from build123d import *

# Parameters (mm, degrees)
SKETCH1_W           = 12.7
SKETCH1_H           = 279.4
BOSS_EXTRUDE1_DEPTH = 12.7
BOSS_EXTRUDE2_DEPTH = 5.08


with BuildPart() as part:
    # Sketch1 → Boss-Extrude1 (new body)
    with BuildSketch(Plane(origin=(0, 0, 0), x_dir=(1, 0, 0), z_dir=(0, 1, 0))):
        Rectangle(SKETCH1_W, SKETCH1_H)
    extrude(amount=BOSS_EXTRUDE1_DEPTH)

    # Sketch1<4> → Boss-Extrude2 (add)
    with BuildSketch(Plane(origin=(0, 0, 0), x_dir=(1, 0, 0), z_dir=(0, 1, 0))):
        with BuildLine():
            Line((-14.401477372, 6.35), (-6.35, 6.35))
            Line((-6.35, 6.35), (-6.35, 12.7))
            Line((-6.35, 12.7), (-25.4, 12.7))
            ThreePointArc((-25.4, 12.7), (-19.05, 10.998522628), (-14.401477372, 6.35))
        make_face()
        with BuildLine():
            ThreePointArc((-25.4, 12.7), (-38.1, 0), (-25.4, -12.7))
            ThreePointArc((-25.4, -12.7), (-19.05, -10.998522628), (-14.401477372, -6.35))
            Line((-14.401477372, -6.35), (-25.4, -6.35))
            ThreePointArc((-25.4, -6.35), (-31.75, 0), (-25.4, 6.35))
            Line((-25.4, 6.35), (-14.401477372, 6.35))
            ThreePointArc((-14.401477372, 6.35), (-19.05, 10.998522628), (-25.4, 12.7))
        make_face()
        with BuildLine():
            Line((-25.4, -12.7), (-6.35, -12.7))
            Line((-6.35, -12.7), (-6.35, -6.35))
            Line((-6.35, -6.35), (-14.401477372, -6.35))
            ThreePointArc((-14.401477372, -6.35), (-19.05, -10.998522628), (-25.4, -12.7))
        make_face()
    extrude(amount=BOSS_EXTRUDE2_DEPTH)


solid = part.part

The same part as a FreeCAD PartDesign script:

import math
import FreeCAD as App
import Part
import Sketcher

V = App.Vector
Q = App.Units.Quantity

doc = App.newDocument("Part")
body = doc.addObject("PartDesign::Body", "Body")

sketch1 = body.newObject("Sketcher::SketchObject", "Sketch")
sketch1.AttachmentSupport = (doc.getObject("XZ_Plane"), [""])
sketch1.MapMode = "FlatFace"
sketch1.addGeometry([
    Part.LineSegment(V(-6, -140, 0), V(-6, 140, 0)),
    Part.LineSegment(V(-6, 140, 0), V(6, 140, 0)),
    Part.LineSegment(V(6, 140, 0), V(6, -140, 0)),
    Part.LineSegment(V(6, -140, 0), V(-6, -140, 0)),
], False)
sketch1.addConstraint([
    Sketcher.Constraint("Coincident", 0, 2, 1, 1),
    Sketcher.Constraint("Coincident", 1, 2, 2, 1),
    Sketcher.Constraint("Coincident", 2, 2, 3, 1),
    Sketcher.Constraint("Coincident", 3, 2, 0, 1),
    Sketcher.Constraint("Vertical", 0),
    Sketcher.Constraint("Horizontal", 1),
    Sketcher.Constraint("Vertical", 2),
    Sketcher.Constraint("Horizontal", 3),
    Sketcher.Constraint("Symmetric", 0, 2, 2, 2, -1, 1),
    Sketcher.Constraint("DistanceY", 0, 1, 0, 2, Q("11 in")),
    Sketcher.Constraint("DistanceX", 1, 1, 1, 2, Q("0.5 in")),
])
pad1 = body.newObject("PartDesign::Pad", "Pad")
pad1.Profile = sketch1
pad1.Length = Q("0.5 in")
pad1.Reversed = True

sketch2 = body.newObject("Sketcher::SketchObject", "Sketch001")
sketch2.AttachmentSupport = (doc.getObject("XZ_Plane"), [""])
sketch2.MapMode = "FlatFace"
sketch2.addGeometry([
    Part.LineSegment(V(-6, -6, 0), V(-6, -13, 0)),
    Part.LineSegment(V(-6, -13, 0), V(-25, -13, 0)),
    Part.ArcOfCircle(Part.Circle(V(-25, 0, 0), V(0, 0, 1), 13), math.radians(90), math.radians(270)),
    Part.LineSegment(V(-25, 13, 0), V(-6, 13, 0)),
    Part.LineSegment(V(-6, 13, 0), V(-6, 6, 0)),
    Part.LineSegment(V(-6, 6, 0), V(-25, 6, 0)),
    Part.ArcOfCircle(Part.Circle(V(-25, 0, 0), V(0, 0, 1), 6), math.radians(90), math.radians(270)),
    Part.LineSegment(V(-25, -6, 0), V(-6, -6, 0)),
], False)
sketch2.addConstraint([
    Sketcher.Constraint("Coincident", 0, 2, 1, 1),
    Sketcher.Constraint("Tangent", 1, 2, 2, 2),
    Sketcher.Constraint("Tangent", 2, 1, 3, 1),
    Sketcher.Constraint("Coincident", 3, 2, 4, 1),
    Sketcher.Constraint("Coincident", 4, 2, 5, 1),
    Sketcher.Constraint("Tangent", 5, 2, 6, 1),
    Sketcher.Constraint("Tangent", 6, 2, 7, 1),
    Sketcher.Constraint("Coincident", 7, 2, 0, 1),
    Sketcher.Constraint("Vertical", 0),
    Sketcher.Constraint("Horizontal", 1),
    Sketcher.Constraint("Horizontal", 3),
    Sketcher.Constraint("Vertical", 4),
    Sketcher.Constraint("Horizontal", 5),
    Sketcher.Constraint("Horizontal", 7),
    Sketcher.Constraint("Coincident", 6, 3, 2, 3),
    Sketcher.Constraint("Symmetric", 0, 2, 3, 2, -1),
    Sketcher.Constraint("Radius", 2, Q("0.5 in")),
    Sketcher.Constraint("Radius", 6, Q("0.25 in")),
    Sketcher.Constraint("DistanceX", 2, 3, -1, 1, Q("1 in")),
    Sketcher.Constraint("DistanceX", 1, 2, 1, 1, Q("0.75 in")),
])
pad2 = body.newObject("PartDesign::Pad", "Pad001")
pad2.Profile = sketch2
pad2.Length = Q("0.2 in")
pad2.Reversed = True

doc.recompute()
